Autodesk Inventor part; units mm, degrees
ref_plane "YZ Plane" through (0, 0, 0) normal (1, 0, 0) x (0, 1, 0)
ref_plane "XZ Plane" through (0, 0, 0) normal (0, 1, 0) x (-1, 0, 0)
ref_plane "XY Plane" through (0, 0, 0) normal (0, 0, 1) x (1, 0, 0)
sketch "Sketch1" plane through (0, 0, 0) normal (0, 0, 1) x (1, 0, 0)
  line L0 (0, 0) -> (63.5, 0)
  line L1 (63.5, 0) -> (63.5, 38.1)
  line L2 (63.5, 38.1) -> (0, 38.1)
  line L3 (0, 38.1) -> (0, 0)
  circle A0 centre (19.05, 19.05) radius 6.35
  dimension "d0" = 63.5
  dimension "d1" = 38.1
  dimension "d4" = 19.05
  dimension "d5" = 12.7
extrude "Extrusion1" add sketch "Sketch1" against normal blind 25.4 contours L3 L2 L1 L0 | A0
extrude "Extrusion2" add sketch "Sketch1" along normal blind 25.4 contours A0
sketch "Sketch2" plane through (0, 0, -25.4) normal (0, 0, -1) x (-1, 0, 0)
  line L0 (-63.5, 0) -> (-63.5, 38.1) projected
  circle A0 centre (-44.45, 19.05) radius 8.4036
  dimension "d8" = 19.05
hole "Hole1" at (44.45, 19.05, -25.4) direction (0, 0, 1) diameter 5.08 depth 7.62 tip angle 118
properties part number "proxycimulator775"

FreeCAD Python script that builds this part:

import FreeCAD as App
import Part
import Sketcher
from FreeCAD import Vector
Q = App.Units.Quantity


def add_polygon(sketch, points):
    """Adds a closed chain of lines whose ends are joined by coincident constraints."""
    first, n = sketch.GeometryCount, len(points)
    for a, b in zip(points, points[1:] + points[:1]):
        sketch.addGeometry(Part.LineSegment(App.Vector(*a, 0), App.Vector(*b, 0)), False)
    for i in range(n):
        sketch.addConstraint(Sketcher.Constraint("Coincident", first + i, 2, first + (i + 1) % n, 1))

doc = App.newDocument("Part")
body = doc.addObject("PartDesign::Body", "Body")

# Sketch on XY plane
sketch1 = body.newObject("Sketcher::SketchObject", "Sketch")
sketch1.AttachmentSupport = (doc.getObject("XY_Plane"), [""])
sketch1.MapMode = "FlatFace"
add_polygon(sketch1, [(0, 38), (0, 0), (64, 0), (64, 38)])  # lines 0-3
sketch1.addConstraint(Sketcher.Constraint("Vertical", 0))
sketch1.addConstraint(Sketcher.Constraint("Horizontal", 1))
sketch1.addConstraint(Sketcher.Constraint("Vertical", 2))
sketch1.addConstraint(Sketcher.Constraint("Horizontal", 3))
sketch1.addConstraint(Sketcher.Constraint("Coincident", 0, 2, -1, 1))
sketch1.addConstraint(Sketcher.Constraint("DistanceX", 1, 1, 1, 2, Q("2.5 in")))
sketch1.addConstraint(Sketcher.Constraint("DistanceY", 0, 2, 0, 1, Q("1.5 in")))
pad1 = body.newObject("PartDesign::Pad", "Pad")
pad1.Profile = sketch1
pad1.Length = Q("1 in")
pad1.Reversed = True

# Sketch on XY plane
sketch2 = body.newObject("Sketcher::SketchObject", "Sketch001")
sketch2.AttachmentSupport = (doc.getObject("XY_Plane"), [""])
sketch2.MapMode = "FlatFace"
sketch2.addGeometry(Part.Circle(Vector(19, 19, 0), Vector(0, 0, 1), 6), False)
sketch2.addConstraint(Sketcher.Constraint("Diameter", 0, Q("0.5 in")))
sketch2.addConstraint(Sketcher.Constraint("DistanceX", -1, 1, 0, 3, Q("0.75 in")))
sketch2.addConstraint(Sketcher.Constraint("DistanceY", -1, 1, 0, 3, Q("0.75 in")))
pad2 = body.newObject("PartDesign::Pad", "Pad001")
pad2.Profile = sketch2
pad2.Length = Q("1 in")

# Sketch on XY plane
sketch3 = body.newObject("Sketcher::SketchObject", "Sketch002")
sketch3.AttachmentSupport = (doc.getObject("XY_Plane"), [""])
sketch3.MapMode = "FlatFace"
sketch3.AttachmentOffset = App.Placement(Vector(0, 0, -1 * 25.4), App.Rotation())
sketch3.addGeometry(Part.Circle(Vector(44.5, 19.1, 0), Vector(0, 0, 1), 2.5), False)
sketch3.addConstraint(Sketcher.Constraint("Diameter", 0, Q("0.2 in")))
sketch3.addConstraint(Sketcher.Constraint("DistanceX", -1, 1, 0, 3, Q("1.75 in")))
sketch3.addConstraint(Sketcher.Constraint("DistanceY", -1, 1, 0, 3, Q("0.75 in")))
doc.recompute()
hole = body.newObject("PartDesign::Hole", "Hole")
hole.Profile = sketch3
hole.ThreadType = "None"
hole.Diameter = Q("0.2 in")
hole.DepthType = "Dimension"
hole.Depth = Q("0.3 in")
hole.DrillPoint = "Angled"
hole.DrillPointAngle = 118
hole.Reversed = True

doc.recompute()
